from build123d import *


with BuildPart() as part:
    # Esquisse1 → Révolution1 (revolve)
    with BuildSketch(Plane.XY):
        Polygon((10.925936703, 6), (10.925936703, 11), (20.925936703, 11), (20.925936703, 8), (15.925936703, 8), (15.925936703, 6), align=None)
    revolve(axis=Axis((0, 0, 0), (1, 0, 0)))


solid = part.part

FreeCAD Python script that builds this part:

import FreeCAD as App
import Part
import Sketcher
from FreeCAD import Vector
Q = App.Units.Quantity

doc = App.newDocument("Part")
body = doc.addObject("PartDesign::Body", "Body")

# Sketch on XY plane
sketch1 = body.newObject("Sketcher::SketchObject", "Sketch")
sketch1.AttachmentSupport = (doc.getObject("XY_Plane"), [""])
sketch1.MapMode = "FlatFace"
sketch1.addGeometry(Part.LineSegment(Vector(10.925937, 11, 0), Vector(10.925937, 6, 0)), False)
sketch1.addGeometry(Part.LineSegment(Vector(10.925937, 6, 0), Vector(15.925937, 6, 0)), False)
sketch1.addGeometry(Part.LineSegment(Vector(15.925937, 6, 0), Vector(15.925937, 8, 0)), False)
sketch1.addGeometry(Part.LineSegment(Vector(15.925937, 8, 0), Vector(20.925937, 8, 0)), False)
sketch1.addGeometry(Part.LineSegment(Vector(20.925937, 8, 0), Vector(20.925937, 11, 0)), False)
sketch1.addGeometry(Part.LineSegment(Vector(20.925937, 11, 0), Vector(10.925937, 11, 0)), False)
sketch1.addConstraint(Sketcher.Constraint("Coincident", 0, 2, 1, 1))
sketch1.addConstraint(Sketcher.Constraint("Coincident", 1, 2, 2, 1))
sketch1.addConstraint(Sketcher.Constraint("Coincident", 2, 2, 3, 1))
sketch1.addConstraint(Sketcher.Constraint("Coincident", 3, 2, 4, 1))
sketch1.addConstraint(Sketcher.Constraint("Coincident", 4, 2, 5, 1))
sketch1.addConstraint(Sketcher.Constraint("Coincident", 5, 2, 0, 1))
sketch1.addConstraint(Sketcher.Constraint("Vertical", 0))
sketch1.addConstraint(Sketcher.Constraint("Horizontal", 1))
sketch1.addConstraint(Sketcher.Constraint("Vertical", 2))
sketch1.addConstraint(Sketcher.Constraint("Horizontal", 3))
sketch1.addConstraint(Sketcher.Constraint("Vertical", 4))
sketch1.addConstraint(Sketcher.Constraint("Horizontal", 5))
sketch1.addConstraint(Sketcher.Constraint("Equal", 1, 3))
sketch1.addConstraint(Sketcher.Constraint("Equal", 3, 0))
sketch1.addConstraint(Sketcher.Constraint("DistanceX", 1, 1, 1, 2, Q("5 mm")))
sketch1.addConstraint(Sketcher.Constraint("DistanceY", 2, 1, 2, 2, Q("2 mm")))
sketch1.addConstraint(Sketcher.Constraint("DistanceY", -1, 1, 0, 2, Q("6 mm")))
sketch1.addConstraint(Sketcher.Constraint("DistanceX", -1, 1, 0, 2, Q("10.925937 mm")))
revolution = body.newObject("PartDesign::Revolution", "Revolution")
revolution.Profile = sketch1
revolution.ReferenceAxis = (sketch1, ["H_Axis"])
revolution.Angle = 360

doc.recompute()
